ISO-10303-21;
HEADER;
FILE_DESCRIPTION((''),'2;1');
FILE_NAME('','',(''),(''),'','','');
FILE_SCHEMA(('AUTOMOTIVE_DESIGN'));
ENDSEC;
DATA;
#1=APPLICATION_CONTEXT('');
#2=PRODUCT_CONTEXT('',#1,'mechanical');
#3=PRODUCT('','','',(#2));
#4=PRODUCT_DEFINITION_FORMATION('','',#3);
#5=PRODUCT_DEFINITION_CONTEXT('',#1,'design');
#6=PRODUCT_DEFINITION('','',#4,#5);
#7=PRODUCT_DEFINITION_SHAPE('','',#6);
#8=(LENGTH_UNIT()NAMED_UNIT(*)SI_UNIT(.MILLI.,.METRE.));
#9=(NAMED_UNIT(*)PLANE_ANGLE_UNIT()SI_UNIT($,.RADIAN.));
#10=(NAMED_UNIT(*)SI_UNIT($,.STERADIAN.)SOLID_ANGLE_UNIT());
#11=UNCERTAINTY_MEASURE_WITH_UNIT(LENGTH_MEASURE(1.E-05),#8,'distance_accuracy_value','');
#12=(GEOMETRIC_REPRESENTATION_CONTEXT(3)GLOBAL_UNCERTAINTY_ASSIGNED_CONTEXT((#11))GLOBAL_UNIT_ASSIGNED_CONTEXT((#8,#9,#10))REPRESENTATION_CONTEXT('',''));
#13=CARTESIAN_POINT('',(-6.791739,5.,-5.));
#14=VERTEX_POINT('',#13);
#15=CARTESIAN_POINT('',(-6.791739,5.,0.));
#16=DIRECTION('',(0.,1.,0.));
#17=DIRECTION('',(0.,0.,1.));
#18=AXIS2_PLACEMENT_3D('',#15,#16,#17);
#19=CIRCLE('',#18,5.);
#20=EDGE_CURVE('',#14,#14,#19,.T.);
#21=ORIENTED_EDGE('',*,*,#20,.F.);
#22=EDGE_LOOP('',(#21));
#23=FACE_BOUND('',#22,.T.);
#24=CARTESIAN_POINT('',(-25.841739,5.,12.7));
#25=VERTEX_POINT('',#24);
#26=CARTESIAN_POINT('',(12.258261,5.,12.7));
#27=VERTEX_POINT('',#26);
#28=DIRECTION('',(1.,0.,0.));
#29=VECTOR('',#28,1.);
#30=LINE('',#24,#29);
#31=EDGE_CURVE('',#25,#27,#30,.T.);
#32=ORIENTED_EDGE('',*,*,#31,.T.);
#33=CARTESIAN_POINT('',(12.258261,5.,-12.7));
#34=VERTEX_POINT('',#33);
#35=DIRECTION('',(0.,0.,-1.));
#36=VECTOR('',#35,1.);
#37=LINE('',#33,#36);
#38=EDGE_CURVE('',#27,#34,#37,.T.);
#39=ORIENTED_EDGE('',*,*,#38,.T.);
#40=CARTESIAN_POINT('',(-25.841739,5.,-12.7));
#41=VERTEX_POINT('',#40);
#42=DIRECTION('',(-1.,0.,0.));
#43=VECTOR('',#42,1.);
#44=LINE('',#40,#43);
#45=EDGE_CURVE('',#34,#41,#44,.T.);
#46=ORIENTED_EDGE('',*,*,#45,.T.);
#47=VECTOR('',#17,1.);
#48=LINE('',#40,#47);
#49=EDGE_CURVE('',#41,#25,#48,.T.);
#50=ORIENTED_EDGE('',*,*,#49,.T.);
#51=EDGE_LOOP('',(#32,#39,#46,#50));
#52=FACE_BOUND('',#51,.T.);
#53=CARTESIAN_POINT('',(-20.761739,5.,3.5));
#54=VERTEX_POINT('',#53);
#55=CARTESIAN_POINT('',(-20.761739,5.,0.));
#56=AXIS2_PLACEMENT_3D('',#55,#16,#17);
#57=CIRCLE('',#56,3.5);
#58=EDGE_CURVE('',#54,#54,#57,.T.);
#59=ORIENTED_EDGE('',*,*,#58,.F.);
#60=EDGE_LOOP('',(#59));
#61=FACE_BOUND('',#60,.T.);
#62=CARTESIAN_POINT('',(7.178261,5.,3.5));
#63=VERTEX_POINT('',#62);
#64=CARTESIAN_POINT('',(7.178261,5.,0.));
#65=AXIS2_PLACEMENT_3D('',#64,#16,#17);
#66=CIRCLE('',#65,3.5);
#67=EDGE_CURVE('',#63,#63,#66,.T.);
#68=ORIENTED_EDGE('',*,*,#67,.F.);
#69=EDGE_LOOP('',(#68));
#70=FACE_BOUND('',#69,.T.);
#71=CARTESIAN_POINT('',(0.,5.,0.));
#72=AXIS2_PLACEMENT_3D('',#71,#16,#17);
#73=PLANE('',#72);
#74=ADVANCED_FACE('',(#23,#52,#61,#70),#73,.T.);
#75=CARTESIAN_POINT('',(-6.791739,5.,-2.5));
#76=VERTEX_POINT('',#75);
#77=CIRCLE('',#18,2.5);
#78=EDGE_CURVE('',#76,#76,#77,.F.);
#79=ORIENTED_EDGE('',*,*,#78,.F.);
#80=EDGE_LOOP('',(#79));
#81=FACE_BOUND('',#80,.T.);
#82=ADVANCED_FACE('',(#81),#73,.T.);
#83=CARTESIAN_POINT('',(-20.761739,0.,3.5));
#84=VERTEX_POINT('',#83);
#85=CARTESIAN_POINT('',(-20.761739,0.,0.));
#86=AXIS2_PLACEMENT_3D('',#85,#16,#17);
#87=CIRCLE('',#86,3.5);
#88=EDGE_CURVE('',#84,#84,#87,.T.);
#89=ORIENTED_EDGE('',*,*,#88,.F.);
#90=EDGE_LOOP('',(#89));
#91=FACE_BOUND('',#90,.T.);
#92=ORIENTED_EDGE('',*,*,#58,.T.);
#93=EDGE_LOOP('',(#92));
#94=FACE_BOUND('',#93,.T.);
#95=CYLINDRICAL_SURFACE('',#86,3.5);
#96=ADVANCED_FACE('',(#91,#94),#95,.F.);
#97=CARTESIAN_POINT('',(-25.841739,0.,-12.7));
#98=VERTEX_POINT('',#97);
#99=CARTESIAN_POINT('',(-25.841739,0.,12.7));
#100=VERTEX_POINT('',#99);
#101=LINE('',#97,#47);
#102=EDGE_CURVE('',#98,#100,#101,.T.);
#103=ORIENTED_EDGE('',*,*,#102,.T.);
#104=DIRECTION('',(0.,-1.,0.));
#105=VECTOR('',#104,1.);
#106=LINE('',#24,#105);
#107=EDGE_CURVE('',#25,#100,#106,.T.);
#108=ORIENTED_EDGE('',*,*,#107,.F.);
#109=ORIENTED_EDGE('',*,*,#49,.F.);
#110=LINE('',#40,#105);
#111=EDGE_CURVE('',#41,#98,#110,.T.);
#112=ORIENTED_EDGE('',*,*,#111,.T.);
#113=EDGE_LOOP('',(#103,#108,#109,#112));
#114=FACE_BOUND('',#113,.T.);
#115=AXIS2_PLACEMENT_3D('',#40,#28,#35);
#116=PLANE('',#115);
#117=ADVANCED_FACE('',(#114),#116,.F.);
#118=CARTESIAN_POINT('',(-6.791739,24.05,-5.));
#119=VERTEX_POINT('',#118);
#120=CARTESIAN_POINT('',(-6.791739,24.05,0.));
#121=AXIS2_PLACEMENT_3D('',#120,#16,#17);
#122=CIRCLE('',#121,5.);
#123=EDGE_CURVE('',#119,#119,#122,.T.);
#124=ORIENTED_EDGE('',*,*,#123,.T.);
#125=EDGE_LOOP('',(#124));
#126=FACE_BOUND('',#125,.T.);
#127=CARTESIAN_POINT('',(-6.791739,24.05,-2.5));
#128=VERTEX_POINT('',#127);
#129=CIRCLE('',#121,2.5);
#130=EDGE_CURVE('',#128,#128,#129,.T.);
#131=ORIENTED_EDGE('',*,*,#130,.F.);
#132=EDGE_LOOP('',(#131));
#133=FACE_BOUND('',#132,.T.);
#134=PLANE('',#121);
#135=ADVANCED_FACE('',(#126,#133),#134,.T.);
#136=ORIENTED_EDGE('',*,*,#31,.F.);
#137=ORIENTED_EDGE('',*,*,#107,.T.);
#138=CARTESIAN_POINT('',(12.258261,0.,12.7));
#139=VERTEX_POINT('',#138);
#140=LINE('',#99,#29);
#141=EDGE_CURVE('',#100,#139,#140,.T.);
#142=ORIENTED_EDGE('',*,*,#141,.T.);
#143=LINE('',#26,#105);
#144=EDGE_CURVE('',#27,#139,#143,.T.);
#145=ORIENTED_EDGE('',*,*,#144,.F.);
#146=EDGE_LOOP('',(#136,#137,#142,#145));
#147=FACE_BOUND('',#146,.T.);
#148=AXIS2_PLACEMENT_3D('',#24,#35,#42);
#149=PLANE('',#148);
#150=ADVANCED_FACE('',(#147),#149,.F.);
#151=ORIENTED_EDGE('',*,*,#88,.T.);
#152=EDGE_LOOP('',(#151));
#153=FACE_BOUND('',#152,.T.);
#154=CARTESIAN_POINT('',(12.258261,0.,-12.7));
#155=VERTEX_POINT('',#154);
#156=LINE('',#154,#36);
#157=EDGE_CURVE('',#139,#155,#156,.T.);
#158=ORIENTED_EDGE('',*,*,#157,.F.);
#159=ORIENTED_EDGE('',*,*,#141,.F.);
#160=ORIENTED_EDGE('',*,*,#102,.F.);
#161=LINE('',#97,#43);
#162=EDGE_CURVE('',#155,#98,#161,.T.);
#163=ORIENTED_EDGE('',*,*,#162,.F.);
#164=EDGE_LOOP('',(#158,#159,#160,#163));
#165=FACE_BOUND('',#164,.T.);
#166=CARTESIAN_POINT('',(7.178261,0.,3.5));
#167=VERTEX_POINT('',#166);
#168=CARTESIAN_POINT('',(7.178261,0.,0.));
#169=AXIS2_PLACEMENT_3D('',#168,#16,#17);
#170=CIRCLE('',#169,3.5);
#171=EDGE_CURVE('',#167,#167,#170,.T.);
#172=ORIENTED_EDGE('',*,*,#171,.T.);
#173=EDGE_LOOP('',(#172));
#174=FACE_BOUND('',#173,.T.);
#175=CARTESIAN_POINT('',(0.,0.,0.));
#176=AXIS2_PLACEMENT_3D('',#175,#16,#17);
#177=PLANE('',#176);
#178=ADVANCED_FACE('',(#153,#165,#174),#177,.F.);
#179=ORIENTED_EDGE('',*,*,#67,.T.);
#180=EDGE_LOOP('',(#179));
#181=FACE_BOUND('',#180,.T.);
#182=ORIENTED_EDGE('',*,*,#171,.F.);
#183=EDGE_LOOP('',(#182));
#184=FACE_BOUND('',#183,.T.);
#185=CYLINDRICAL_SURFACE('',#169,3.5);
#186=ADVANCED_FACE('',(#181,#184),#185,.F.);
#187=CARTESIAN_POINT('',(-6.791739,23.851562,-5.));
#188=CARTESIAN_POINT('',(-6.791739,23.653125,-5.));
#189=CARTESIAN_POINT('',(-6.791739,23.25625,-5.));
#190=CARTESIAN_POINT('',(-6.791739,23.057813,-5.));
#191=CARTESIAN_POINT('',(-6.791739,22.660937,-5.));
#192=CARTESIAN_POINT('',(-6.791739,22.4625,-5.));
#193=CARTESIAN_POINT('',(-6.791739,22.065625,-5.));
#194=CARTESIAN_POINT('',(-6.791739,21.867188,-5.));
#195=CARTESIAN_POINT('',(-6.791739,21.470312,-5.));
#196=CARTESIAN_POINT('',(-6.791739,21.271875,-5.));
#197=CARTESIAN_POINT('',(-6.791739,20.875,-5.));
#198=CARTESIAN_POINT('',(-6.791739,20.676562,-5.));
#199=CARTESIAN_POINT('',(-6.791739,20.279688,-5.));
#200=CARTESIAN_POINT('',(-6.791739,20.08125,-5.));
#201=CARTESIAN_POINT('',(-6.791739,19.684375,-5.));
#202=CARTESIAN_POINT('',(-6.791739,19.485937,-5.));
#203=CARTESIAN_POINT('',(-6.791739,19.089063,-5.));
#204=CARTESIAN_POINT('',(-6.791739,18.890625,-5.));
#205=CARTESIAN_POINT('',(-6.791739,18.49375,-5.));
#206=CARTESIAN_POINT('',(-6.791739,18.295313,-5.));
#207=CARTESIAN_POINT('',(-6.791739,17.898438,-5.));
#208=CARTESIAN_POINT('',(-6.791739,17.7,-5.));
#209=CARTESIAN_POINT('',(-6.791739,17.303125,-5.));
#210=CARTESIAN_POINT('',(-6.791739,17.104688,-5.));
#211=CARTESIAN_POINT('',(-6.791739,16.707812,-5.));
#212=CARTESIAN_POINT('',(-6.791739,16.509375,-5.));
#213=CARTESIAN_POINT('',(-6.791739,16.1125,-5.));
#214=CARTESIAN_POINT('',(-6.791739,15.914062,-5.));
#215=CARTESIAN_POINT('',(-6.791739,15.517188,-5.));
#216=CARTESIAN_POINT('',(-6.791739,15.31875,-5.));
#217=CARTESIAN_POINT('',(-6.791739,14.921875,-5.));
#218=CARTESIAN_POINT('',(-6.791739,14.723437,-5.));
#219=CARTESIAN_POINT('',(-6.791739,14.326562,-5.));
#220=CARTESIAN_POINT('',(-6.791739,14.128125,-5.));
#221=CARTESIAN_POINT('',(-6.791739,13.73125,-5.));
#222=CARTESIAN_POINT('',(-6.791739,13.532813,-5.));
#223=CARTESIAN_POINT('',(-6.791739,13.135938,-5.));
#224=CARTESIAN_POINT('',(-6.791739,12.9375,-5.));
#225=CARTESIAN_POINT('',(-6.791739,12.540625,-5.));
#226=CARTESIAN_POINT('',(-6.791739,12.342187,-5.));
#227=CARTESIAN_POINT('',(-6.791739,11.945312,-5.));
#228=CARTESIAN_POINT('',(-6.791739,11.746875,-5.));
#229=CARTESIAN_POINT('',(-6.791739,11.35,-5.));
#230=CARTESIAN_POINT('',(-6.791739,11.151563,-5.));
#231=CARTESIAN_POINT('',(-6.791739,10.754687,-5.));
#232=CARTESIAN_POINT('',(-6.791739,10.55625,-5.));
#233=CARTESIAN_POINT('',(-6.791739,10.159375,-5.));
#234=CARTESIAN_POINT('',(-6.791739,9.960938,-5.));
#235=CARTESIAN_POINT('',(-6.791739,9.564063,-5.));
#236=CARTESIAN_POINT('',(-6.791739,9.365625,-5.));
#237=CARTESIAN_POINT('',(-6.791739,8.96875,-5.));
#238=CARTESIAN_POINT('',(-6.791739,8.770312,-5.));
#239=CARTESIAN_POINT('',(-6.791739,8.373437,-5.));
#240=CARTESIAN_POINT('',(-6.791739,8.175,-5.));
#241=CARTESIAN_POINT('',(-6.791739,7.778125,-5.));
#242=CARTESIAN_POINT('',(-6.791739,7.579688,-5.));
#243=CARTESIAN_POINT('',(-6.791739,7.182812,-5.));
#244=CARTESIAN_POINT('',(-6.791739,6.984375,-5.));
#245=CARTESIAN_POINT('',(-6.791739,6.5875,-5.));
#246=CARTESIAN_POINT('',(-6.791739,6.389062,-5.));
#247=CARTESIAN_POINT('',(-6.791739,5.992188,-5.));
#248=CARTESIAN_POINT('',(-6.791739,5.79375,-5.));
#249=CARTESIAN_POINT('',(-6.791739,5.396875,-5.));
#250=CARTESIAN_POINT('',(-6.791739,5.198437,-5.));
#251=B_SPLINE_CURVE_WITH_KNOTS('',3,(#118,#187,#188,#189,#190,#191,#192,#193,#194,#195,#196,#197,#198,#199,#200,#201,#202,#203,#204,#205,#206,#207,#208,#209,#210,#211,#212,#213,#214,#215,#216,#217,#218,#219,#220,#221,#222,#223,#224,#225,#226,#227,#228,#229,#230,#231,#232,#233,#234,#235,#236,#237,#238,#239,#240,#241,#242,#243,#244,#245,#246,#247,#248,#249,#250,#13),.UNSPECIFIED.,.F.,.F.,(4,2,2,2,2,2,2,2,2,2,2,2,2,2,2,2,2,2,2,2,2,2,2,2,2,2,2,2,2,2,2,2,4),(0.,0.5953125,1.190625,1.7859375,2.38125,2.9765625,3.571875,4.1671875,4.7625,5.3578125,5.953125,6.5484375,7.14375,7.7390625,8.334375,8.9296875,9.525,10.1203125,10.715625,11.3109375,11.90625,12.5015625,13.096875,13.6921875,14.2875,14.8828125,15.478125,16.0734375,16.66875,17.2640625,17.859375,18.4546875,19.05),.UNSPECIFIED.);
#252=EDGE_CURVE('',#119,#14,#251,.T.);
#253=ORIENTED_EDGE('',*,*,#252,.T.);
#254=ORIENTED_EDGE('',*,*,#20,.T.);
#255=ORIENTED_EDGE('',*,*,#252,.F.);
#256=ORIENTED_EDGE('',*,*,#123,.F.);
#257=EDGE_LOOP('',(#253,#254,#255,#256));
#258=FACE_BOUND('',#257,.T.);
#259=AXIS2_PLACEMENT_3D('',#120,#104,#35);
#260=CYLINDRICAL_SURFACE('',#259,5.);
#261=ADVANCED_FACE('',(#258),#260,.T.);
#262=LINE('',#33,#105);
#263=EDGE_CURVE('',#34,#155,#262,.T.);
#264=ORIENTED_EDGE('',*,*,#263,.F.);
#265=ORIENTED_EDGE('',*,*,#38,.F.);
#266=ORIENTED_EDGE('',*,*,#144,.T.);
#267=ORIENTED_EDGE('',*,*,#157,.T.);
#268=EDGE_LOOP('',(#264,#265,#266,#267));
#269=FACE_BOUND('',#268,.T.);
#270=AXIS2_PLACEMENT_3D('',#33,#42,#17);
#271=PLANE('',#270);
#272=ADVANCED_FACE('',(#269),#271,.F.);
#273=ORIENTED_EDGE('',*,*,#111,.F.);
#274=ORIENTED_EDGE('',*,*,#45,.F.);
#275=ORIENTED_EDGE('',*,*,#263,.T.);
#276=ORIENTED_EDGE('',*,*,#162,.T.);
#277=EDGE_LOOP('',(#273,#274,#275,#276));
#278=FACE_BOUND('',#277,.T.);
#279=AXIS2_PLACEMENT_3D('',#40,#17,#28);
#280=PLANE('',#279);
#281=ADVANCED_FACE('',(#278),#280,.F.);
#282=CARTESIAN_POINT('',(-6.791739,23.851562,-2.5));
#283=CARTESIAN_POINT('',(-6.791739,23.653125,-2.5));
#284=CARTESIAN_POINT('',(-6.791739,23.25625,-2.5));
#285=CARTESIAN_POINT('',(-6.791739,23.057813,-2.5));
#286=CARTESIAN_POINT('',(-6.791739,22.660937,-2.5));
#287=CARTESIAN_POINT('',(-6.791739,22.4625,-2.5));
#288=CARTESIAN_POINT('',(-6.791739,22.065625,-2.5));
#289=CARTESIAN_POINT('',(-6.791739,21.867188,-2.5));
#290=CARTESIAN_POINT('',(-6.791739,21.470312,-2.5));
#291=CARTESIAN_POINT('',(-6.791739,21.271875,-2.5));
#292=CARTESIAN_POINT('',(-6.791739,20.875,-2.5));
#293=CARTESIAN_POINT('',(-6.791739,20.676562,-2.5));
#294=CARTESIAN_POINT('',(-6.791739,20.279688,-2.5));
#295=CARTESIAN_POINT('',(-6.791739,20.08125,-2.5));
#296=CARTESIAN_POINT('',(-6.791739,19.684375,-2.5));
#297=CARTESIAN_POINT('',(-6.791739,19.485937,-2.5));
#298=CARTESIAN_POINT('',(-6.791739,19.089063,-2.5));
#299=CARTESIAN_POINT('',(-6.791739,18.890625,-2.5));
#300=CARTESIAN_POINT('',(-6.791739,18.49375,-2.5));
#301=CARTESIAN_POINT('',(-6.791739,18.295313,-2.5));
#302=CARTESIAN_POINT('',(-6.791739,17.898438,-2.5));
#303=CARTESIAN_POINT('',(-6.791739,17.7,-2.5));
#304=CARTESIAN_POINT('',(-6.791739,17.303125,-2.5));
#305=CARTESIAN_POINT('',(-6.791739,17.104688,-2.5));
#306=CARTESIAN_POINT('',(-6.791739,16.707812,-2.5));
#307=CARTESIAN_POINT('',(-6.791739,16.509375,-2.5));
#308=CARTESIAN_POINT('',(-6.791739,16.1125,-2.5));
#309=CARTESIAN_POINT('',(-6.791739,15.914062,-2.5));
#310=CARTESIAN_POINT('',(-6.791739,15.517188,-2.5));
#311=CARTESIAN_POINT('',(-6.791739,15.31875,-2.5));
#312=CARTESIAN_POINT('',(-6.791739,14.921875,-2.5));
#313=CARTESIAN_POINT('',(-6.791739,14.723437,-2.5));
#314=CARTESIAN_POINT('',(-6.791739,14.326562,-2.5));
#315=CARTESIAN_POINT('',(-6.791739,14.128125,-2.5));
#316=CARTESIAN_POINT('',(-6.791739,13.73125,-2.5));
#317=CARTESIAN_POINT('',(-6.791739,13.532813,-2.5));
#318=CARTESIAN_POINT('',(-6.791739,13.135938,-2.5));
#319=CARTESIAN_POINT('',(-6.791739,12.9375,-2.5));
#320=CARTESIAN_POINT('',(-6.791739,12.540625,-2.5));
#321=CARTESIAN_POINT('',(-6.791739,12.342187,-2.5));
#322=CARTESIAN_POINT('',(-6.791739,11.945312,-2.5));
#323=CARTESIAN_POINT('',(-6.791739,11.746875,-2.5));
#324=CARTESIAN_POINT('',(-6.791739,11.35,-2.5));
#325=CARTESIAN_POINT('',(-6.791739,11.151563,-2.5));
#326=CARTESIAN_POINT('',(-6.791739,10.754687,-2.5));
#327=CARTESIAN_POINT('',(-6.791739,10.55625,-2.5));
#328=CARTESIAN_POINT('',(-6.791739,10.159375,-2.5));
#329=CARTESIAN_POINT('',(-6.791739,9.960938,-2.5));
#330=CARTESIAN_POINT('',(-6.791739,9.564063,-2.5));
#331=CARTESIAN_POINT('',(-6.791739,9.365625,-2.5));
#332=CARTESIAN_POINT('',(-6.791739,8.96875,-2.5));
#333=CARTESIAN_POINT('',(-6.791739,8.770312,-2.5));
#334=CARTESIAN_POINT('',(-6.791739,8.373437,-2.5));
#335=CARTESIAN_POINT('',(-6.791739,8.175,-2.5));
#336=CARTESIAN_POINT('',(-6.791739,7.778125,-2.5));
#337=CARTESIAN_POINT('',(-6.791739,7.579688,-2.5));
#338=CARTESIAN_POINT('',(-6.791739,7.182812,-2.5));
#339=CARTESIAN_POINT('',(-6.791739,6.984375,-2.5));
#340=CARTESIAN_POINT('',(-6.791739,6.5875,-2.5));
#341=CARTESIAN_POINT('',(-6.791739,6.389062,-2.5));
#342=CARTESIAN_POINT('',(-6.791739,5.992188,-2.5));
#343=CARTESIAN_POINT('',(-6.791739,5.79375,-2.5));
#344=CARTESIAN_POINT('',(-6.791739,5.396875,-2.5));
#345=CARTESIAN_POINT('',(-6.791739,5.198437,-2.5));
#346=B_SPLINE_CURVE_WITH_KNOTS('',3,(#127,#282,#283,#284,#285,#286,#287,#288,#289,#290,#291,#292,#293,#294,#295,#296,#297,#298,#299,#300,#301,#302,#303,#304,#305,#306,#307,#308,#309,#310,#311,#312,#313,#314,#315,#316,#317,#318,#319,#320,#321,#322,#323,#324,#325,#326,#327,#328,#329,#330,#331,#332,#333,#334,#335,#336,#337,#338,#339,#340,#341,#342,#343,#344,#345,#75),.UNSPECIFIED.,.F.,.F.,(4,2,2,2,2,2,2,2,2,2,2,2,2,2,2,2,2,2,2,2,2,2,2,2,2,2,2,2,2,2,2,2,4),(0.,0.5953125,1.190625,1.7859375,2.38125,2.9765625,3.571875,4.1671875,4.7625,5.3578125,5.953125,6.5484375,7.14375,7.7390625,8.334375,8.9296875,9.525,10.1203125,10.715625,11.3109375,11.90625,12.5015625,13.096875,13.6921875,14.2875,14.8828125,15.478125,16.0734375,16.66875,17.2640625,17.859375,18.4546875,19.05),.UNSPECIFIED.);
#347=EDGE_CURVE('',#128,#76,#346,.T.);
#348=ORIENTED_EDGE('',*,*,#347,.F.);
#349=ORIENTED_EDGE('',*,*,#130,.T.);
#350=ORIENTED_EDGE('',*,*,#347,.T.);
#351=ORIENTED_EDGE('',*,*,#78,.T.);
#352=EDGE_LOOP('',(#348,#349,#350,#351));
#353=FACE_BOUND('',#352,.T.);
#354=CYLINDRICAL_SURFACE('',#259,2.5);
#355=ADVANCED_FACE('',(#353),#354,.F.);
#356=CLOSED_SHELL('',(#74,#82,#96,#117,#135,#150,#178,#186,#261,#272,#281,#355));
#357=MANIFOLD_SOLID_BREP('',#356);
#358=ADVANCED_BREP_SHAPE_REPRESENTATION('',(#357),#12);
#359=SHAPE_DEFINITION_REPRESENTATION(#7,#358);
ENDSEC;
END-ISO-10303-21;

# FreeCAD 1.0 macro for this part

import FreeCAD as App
import Part
import Sketcher

V = App.Vector

doc = App.newDocument("Part")
body = doc.addObject("PartDesign::Body", "Body")

sketch1 = body.newObject("Sketcher::SketchObject", "Sketch")
sketch1.AttachmentSupport = (doc.getObject("XZ_Plane"), [""])
sketch1.MapMode = "FlatFace"
sketch1.addGeometry([
    Part.LineSegment(V(-26, -13, 0), V(-26, 13, 0)),
    Part.LineSegment(V(-26, 13, 0), V(12, 13, 0)),
    Part.LineSegment(V(12, 13, 0), V(12, -13, 0)),
    Part.LineSegment(V(12, -13, 0), V(-26, -13, 0)),
], False)
sketch1.addConstraint([
    Sketcher.Constraint("Coincident", 0, 2, 1, 1),
    Sketcher.Constraint("Coincident", 1, 2, 2, 1),
    Sketcher.Constraint("Coincident", 2, 2, 3, 1),
    Sketcher.Constraint("Coincident", 3, 2, 0, 1),
    Sketcher.Constraint("Vertical", 0),
    Sketcher.Constraint("Horizontal", 1),
    Sketcher.Constraint("Vertical", 2),
    Sketcher.Constraint("Horizontal", 3),
    Sketcher.Constraint("DistanceX", 1, 1, 1, 2, 38.1),
    Sketcher.Constraint("DistanceY", 0, 1, 0, 2, 25.4),
    Sketcher.Constraint("DistanceY", -1, 1, 0, 2, 12.7),
    Sketcher.Constraint("DistanceX", 0, 2, -1, 1, 25.841739),
])
pad1 = body.newObject("PartDesign::Pad", "Pad")
pad1.Profile = sketch1
pad1.Length = 5
pad1.Reversed = True

sketch2 = body.newObject("Sketcher::SketchObject", "Sketch001")
sketch2.AttachmentSupport = (doc.getObject("XZ_Plane"), [""])
sketch2.MapMode = "FlatFace"
sketch2.AttachmentOffset = App.Placement(V(0, 0, -5), App.Rotation())
sketch2.addGeometry([
    Part.Circle(V(-6.8, 0, 0), V(0, 0, 1), 5),
    Part.Circle(V(-6.8, 0, 0), V(0, 0, 1), 2.5),
], False)
sketch2.addConstraint([
    Sketcher.Constraint("Coincident", 1, 3, 0, 3),
    Sketcher.Constraint("PointOnObject", 0, 3, -1),
    Sketcher.Constraint("Diameter", 0, 10.0),
    Sketcher.Constraint("Diameter", 1, 5.0),
    Sketcher.Constraint("DistanceX", 0, 3, -1, 1, 6.791739),
])
pad2 = body.newObject("PartDesign::Pad", "Pad001")
pad2.Profile = sketch2
pad2.Length = 19.05
pad2.Reversed = True

sketch3 = body.newObject("Sketcher::SketchObject", "Sketch002")
sketch3.AttachmentSupport = (doc.getObject("XZ_Plane"), [""])
sketch3.MapMode = "FlatFace"
sketch3.AttachmentOffset = App.Placement(V(0, 0, -5), App.Rotation())
sketch3.addGeometry([
    Part.Circle(V(7.2, 0, 0), V(0, 0, 1), 3.5),
    Part.Circle(V(-20.8, 0, 0), V(0, 0, 1), 3.5),
], False)
sketch3.addConstraint([
    Sketcher.Constraint("Equal", 0, 1),
    Sketcher.Constraint("PointOnObject", 0, 3, -1),
    Sketcher.Constraint("PointOnObject", 1, 3, -1),
    Sketcher.Constraint("Diameter", 0, 7.0),
    Sketcher.Constraint("DistanceX", 1, 3, 0, 3, 27.94),
    Sketcher.Constraint("DistanceX", -1, 1, 0, 3, 7.178261),
])
pocket1 = body.newObject("PartDesign::Pocket", "Pocket")
pocket1.Profile = sketch3
pocket1.Type = "ThroughAll"
pocket1.Reversed = True

doc.recompute()
